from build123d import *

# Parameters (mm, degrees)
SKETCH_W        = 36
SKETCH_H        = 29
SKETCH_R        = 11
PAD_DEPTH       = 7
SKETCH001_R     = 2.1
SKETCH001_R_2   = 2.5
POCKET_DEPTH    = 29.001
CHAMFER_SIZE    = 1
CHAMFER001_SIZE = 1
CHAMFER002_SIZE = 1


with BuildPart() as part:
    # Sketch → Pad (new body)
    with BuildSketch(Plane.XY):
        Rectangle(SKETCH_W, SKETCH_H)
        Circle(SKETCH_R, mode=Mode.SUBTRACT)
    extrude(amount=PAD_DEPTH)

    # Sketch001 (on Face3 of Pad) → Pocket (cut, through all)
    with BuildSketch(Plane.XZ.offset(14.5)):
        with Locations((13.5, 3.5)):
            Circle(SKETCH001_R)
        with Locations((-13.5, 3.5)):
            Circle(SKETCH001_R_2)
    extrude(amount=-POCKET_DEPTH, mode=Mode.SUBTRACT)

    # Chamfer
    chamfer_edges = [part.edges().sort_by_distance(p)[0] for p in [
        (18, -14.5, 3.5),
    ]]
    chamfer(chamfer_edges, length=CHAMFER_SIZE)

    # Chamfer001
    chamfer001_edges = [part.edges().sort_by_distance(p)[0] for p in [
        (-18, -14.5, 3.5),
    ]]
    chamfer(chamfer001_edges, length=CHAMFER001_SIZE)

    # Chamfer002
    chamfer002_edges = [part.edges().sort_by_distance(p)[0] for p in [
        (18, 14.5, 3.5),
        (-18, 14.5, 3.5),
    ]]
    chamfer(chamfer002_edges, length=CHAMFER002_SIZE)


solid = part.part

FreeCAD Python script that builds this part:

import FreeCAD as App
import Part
import Sketcher


def edges_at(feature, points):
    """Names of the edges that pass closest to the given points."""
    edges = feature.Shape.Edges
    near = lambda p: min(range(len(edges)), key=lambda i: edges[i].distToShape(Part.Vertex(*p))[0])
    return sorted({f"Edge{near(p) + 1}" for p in points})


def add_polygon(sketch, points):
    """Adds a closed chain of lines whose ends are joined by coincident constraints."""
    first, n = sketch.GeometryCount, len(points)
    for a, b in zip(points, points[1:] + points[:1]):
        sketch.addGeometry(Part.LineSegment(App.Vector(*a, 0), App.Vector(*b, 0)), False)
    for i in range(n):
        sketch.addConstraint(Sketcher.Constraint("Coincident", first + i, 2, first + (i + 1) % n, 1))

doc = App.newDocument("Part")
body = doc.addObject("PartDesign::Body", "Body")

# Sketch on XY plane
sketch1 = body.newObject("Sketcher::SketchObject", "Sketch")
sketch1.AttachmentSupport = (doc.getObject("XY_Plane"), [""])
sketch1.MapMode = "FlatFace"
add_polygon(sketch1, [(-18, 14.5), (-18, -14.5), (18, -14.5), (18, 14.5)])  # lines 0-3
sketch1.addGeometry(Part.Circle(App.Vector(0, 0, 0), App.Vector(0, 0, 1), 11), False)  # 4
sketch1.addConstraint([
    Sketcher.Constraint("Vertical", 0),
    Sketcher.Constraint("Horizontal", 1),
    Sketcher.Constraint("Vertical", 2),
    Sketcher.Constraint("Horizontal", 3),
    Sketcher.Constraint("Coincident", 4, 3, -1, 1),
    Sketcher.Constraint("Symmetric", 0, 2, 2, 2, -1, 1),
    Sketcher.Constraint("Diameter", 4, 22.0),
    Sketcher.Constraint("DistanceX", 1, 1, 1, 2, 36.0),
    Sketcher.Constraint("DistanceY", 0, 2, 0, 1, 29.0),
])
pad1 = body.newObject("PartDesign::Pad", "Pad")
pad1.Profile = sketch1
pad1.Length = 7

# Sketch on XZ plane
sketch2 = body.newObject("Sketcher::SketchObject", "Sketch001")
sketch2.AttachmentSupport = (doc.getObject("XZ_Plane"), [""])
sketch2.MapMode = "FlatFace"
sketch2.AttachmentOffset = App.Placement(App.Vector(0, 0, 14.5), App.Rotation())
sketch2.addGeometry([
    Part.Circle(App.Vector(13.5, 3.5, 0), App.Vector(0, 0, 1), 2.1),
    Part.Circle(App.Vector(-13.5, 3.5, 0), App.Vector(0, 0, 1), 2.5),
], False)
sketch2.addConstraint([
    Sketcher.Constraint("Symmetric", 0, 3, 1, 3, -2),
    Sketcher.Constraint("Diameter", 1, 5.0),
    Sketcher.Constraint("Diameter", 0, 4.2),
    Sketcher.Constraint("DistanceX", 1, 3, 0, 3, 27.0),
    Sketcher.Constraint("DistanceY", -1, 1, 0, 3, 3.5),
])
pocket1 = body.newObject("PartDesign::Pocket", "Pocket")
pocket1.Profile = sketch2
pocket1.Type = "ThroughAll"
doc.recompute()

chamfer = body.newObject("PartDesign::Chamfer", "Chamfer")
chamfer.Base = (pocket1, edges_at(pocket1, [(18, -14.5, 3.5)]))
chamfer.Size = 1
doc.recompute()

chamfer2 = body.newObject("PartDesign::Chamfer", "Chamfer001")
chamfer2.Base = (chamfer, edges_at(chamfer, [(-18, -14.5, 3.5)]))
chamfer2.Size = 1
doc.recompute()

chamfer3 = body.newObject("PartDesign::Chamfer", "Chamfer002")
chamfer3.Base = (chamfer2, edges_at(chamfer2, [(18, 14.5, 3.5), (-18, 14.5, 3.5)]))
chamfer3.Size = 1

doc.recompute()
